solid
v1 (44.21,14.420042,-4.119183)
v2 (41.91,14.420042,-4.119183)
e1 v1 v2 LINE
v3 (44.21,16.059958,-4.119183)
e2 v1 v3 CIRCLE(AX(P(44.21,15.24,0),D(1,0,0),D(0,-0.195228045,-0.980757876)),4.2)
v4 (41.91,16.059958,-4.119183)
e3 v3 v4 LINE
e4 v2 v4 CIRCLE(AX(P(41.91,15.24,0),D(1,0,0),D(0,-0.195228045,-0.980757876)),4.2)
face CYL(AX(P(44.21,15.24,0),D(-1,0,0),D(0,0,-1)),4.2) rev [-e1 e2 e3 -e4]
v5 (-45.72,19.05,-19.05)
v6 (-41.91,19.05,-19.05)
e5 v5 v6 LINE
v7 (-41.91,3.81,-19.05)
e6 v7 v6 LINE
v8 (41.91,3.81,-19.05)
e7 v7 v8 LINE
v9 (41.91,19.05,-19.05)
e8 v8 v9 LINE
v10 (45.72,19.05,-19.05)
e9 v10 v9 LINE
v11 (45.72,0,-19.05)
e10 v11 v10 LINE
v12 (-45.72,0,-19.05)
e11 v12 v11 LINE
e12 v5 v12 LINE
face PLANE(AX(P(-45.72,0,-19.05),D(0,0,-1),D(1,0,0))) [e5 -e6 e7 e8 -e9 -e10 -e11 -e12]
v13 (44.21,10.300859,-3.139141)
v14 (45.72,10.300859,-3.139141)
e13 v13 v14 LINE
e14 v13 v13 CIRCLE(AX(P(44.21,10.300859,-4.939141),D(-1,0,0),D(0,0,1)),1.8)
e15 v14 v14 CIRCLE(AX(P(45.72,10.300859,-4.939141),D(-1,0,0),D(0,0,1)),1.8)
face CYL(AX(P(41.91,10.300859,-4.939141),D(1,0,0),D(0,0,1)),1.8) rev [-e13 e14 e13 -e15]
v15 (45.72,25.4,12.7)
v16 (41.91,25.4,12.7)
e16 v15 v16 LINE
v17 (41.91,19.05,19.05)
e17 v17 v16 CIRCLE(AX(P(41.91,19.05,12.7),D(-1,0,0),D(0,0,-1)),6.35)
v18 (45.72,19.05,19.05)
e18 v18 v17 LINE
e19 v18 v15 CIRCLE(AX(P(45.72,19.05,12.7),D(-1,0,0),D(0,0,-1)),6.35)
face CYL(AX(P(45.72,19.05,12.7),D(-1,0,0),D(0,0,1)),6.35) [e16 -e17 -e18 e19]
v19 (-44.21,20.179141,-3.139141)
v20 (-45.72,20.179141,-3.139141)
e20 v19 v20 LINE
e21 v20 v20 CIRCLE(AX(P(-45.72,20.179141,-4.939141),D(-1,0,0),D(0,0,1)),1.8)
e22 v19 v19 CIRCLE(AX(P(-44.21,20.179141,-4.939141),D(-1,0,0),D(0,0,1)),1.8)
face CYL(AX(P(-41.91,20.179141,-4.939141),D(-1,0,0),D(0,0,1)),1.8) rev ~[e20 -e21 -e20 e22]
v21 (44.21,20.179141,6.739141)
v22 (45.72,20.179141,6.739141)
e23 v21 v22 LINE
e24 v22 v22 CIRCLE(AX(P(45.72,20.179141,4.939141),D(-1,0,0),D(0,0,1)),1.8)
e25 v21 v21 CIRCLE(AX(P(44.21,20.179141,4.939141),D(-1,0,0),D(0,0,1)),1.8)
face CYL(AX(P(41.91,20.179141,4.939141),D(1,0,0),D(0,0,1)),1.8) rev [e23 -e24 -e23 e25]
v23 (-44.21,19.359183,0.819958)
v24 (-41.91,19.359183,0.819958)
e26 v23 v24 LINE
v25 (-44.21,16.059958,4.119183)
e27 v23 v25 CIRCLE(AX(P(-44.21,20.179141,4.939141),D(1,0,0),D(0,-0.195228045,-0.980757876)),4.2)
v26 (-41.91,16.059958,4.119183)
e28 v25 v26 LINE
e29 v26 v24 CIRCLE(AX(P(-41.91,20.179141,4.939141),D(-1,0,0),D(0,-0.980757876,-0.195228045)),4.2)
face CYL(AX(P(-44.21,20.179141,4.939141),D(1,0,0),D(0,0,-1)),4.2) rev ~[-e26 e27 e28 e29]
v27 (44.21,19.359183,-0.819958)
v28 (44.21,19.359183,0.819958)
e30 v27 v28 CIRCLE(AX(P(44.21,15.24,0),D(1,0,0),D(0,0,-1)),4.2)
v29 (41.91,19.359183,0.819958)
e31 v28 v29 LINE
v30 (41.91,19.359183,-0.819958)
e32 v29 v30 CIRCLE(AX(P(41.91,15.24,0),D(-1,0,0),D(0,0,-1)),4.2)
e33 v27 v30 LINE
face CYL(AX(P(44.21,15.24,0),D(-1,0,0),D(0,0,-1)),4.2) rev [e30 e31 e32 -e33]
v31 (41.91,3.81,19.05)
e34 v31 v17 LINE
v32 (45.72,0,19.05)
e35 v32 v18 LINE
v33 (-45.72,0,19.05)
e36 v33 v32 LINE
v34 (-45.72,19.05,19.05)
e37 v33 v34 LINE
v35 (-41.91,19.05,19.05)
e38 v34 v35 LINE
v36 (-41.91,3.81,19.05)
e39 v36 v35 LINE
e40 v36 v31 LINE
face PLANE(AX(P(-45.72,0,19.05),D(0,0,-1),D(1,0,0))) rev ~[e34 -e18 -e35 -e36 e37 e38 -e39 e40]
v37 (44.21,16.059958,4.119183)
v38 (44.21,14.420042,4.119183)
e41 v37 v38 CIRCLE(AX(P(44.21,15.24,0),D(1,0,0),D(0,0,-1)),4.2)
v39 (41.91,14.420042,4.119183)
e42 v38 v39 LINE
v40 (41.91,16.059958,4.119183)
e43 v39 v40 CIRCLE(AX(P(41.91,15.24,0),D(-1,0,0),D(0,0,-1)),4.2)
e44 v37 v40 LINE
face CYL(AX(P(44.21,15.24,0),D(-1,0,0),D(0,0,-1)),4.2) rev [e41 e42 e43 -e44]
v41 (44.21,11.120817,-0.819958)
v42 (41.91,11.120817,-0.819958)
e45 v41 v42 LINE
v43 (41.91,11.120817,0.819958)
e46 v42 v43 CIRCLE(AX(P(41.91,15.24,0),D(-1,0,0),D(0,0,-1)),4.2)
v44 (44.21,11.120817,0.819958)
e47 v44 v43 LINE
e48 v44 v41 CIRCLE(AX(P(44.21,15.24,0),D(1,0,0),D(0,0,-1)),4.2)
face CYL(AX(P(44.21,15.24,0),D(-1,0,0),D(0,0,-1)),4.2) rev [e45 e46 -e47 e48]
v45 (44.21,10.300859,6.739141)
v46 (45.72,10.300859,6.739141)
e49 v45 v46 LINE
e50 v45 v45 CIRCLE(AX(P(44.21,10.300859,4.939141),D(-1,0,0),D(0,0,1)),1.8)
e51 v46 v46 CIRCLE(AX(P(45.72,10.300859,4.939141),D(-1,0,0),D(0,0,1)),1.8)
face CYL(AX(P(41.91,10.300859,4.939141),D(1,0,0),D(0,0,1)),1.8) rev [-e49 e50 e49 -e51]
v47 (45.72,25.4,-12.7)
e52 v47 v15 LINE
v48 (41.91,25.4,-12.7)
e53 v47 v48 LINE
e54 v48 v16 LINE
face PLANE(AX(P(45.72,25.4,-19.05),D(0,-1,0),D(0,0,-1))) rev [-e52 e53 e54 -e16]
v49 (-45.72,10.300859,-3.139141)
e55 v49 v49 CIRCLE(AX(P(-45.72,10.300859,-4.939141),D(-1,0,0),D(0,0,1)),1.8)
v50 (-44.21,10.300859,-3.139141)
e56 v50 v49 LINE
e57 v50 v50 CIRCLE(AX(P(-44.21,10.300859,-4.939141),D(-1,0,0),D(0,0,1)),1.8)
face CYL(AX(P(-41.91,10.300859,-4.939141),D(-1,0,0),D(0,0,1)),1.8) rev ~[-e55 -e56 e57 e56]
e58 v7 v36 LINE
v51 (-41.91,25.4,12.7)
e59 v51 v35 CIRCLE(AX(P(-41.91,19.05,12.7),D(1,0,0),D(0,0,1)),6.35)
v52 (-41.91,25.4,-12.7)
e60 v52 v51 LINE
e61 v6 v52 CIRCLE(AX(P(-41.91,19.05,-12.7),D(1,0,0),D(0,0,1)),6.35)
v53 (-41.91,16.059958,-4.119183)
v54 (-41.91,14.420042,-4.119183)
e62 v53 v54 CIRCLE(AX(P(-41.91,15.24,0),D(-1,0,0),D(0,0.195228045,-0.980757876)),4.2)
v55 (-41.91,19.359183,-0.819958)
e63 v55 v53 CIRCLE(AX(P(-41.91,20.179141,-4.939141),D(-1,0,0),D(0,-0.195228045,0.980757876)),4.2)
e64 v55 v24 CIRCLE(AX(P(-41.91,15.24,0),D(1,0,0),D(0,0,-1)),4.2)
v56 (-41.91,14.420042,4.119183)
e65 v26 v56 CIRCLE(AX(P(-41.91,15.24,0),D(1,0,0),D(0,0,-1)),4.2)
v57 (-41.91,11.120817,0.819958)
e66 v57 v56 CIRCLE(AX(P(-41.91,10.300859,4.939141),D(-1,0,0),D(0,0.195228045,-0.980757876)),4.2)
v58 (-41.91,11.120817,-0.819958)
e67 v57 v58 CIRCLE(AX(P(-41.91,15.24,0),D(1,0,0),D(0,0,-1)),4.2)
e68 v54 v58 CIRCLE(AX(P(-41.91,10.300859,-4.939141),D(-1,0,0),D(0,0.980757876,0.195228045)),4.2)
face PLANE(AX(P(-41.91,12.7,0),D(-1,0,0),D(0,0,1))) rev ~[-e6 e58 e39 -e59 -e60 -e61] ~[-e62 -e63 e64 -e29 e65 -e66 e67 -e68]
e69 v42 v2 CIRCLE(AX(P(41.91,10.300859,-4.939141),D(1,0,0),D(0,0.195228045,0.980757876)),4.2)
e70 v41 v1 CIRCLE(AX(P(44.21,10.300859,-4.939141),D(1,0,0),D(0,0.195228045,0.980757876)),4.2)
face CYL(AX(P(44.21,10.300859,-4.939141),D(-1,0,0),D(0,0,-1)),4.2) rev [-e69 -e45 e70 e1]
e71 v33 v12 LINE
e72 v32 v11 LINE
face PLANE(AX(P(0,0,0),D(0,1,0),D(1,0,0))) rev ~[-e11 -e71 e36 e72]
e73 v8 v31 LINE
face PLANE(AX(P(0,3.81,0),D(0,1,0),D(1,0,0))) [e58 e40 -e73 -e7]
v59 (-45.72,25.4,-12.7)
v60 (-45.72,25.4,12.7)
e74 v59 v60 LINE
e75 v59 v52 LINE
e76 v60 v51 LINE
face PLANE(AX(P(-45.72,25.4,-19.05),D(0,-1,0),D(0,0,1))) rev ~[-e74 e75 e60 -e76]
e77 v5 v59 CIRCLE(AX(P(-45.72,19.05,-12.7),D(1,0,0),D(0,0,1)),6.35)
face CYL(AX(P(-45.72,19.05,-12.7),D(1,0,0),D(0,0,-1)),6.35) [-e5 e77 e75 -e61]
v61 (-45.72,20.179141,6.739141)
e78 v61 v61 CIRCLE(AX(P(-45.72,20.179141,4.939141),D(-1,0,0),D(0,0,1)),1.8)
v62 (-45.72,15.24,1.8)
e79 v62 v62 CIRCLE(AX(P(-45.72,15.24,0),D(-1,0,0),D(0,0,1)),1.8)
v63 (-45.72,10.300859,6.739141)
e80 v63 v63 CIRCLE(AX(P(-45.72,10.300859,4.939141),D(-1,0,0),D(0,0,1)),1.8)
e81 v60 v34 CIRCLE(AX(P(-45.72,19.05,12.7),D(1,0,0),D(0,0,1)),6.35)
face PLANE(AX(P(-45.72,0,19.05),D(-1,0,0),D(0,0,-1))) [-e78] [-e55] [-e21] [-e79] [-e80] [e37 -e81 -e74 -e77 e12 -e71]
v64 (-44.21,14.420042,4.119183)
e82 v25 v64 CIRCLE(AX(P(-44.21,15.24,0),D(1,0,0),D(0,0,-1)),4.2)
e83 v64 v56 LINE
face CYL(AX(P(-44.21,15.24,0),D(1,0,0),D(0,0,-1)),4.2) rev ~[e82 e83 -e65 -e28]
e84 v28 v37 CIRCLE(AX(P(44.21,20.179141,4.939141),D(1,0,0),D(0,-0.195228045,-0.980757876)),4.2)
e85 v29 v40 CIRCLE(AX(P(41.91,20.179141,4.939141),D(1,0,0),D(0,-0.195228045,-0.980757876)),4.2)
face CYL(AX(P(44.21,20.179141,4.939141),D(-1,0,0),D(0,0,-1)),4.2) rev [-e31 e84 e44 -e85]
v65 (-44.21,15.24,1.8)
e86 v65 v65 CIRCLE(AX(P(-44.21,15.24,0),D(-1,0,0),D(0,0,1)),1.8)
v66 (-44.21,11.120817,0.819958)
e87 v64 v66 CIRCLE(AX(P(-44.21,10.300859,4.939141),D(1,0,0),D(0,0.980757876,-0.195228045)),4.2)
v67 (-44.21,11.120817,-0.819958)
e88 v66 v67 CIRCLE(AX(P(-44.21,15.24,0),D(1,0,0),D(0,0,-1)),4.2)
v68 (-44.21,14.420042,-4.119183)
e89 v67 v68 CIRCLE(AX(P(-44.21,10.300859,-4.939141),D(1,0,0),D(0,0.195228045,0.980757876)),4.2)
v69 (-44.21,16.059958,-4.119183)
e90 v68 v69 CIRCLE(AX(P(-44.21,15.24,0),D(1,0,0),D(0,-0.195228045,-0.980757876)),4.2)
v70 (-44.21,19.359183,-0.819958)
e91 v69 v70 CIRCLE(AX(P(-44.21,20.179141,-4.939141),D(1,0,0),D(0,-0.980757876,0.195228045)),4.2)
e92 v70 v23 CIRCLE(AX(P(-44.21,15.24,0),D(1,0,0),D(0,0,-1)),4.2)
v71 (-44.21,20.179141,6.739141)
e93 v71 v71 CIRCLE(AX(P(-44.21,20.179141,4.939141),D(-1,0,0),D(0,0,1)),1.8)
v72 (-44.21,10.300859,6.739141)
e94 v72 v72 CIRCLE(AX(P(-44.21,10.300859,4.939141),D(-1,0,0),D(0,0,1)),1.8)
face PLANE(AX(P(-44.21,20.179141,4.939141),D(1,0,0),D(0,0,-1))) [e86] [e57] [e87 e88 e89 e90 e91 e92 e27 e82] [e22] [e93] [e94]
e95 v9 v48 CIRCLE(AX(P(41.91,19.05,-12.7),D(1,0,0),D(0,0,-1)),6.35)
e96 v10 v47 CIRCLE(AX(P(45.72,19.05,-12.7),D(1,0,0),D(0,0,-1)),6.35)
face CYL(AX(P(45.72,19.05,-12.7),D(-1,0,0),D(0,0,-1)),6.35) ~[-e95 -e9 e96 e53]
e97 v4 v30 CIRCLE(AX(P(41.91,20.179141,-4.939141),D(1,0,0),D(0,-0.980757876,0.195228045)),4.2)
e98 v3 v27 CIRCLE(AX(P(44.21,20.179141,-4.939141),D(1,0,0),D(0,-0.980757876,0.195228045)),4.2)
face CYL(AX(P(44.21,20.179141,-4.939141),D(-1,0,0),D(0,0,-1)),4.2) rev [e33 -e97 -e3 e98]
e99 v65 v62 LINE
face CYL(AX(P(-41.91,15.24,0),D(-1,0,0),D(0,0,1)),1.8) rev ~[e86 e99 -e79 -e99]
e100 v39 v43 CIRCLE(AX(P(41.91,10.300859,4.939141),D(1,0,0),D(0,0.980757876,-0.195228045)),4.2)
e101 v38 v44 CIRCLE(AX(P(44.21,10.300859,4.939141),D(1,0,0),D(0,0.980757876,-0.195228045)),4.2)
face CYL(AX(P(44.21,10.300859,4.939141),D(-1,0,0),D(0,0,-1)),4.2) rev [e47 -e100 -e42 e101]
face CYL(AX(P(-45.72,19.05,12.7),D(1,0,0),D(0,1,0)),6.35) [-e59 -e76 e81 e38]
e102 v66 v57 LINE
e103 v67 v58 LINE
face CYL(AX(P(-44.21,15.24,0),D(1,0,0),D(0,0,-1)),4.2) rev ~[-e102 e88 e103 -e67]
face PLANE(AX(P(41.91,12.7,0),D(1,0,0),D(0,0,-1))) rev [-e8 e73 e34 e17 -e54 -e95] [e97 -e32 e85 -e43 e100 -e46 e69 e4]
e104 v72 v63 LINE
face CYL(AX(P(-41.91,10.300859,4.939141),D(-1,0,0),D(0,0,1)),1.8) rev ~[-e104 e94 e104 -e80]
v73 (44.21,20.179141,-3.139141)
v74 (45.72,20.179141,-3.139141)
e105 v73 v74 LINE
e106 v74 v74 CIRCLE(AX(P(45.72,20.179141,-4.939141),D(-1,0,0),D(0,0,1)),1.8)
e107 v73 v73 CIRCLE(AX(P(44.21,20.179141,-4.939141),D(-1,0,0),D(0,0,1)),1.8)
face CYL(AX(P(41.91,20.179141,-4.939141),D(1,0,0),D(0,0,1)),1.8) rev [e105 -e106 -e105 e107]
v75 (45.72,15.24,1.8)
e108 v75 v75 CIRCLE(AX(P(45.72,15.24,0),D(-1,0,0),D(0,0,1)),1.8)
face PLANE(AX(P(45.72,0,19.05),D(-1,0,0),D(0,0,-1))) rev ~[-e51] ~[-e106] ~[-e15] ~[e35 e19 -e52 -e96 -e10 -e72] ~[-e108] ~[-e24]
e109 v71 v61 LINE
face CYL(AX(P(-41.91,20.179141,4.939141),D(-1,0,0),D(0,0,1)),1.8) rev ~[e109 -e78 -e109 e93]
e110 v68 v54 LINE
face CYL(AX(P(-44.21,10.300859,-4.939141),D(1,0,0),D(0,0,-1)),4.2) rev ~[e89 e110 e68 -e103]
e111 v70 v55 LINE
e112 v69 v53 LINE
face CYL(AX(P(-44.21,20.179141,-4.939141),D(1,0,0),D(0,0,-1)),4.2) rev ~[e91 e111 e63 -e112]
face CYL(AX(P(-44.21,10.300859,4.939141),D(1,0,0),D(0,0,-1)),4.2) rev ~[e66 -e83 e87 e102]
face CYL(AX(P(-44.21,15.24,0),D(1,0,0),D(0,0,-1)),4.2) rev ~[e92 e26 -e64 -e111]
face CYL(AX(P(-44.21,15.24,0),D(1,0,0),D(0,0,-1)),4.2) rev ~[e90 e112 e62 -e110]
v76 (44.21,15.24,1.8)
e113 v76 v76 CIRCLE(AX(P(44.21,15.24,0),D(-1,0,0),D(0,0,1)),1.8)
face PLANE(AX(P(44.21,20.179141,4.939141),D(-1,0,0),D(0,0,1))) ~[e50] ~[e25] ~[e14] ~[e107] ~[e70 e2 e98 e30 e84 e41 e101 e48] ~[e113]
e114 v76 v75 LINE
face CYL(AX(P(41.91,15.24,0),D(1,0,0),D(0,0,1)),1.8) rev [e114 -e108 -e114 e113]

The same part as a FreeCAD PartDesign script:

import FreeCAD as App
import Part
import Sketcher

V = App.Vector
Q = App.Units.Quantity


def edges_at(feature, points):
    """Names of the edges that pass closest to the given points."""
    edges = feature.Shape.Edges
    near = lambda p: min(range(len(edges)), key=lambda i: edges[i].distToShape(Part.Vertex(*p))[0])
    return sorted({f"Edge{near(p) + 1}" for p in points})


def add_polygon(sketch, points):
    """Adds a closed chain of lines whose ends are joined by coincident constraints."""
    first, n = sketch.GeometryCount, len(points)
    for a, b in zip(points, points[1:] + points[:1]):
        sketch.addGeometry(Part.LineSegment(App.Vector(*a, 0), App.Vector(*b, 0)), False)
    for i in range(n):
        sketch.addConstraint(Sketcher.Constraint("Coincident", first + i, 2, first + (i + 1) % n, 1))

doc = App.newDocument("Part")
params = doc.addObject("Spreadsheet::Sheet", "Params")
for row, (alias, value) in enumerate([
    ("sketch1_width", "3.6 in"),
    ("sketch1_height", "1.5 in"),
    ("pad1_length", "0.15 in"),
    ("sketch2_width", "1 in"),
    ("sketch2_height", "1.5 in"),
    ("pad2_length", "0.15 in"),
    ("hole_diameter", "3.6 mm"),
    ("hole_depth", "0.15 in"),
    ("hole_cbore_diameter", "8.4 mm"),
    ("hole_cbore_depth", "2.3 mm"),
    ("fillet_radius", "0.25 in"),
    ("fillet2_radius", "0.25 in"),
], start=1):
    params.set(f"A{row}", alias)
    params.set(f"B{row}", "=" + value)
    params.setAlias(f"B{row}", alias)

body = doc.addObject("PartDesign::Body", "Body")

sketch1 = body.newObject("Sketcher::SketchObject", "Sketch")
sketch1.AttachmentSupport = (doc.getObject("XZ_Plane"), [""])
sketch1.MapMode = "FlatFace"
add_polygon(sketch1, [(-45.72, -19.05), (-45.72, 19.05), (45.72, 19.05), (45.72, -19.05)])
sketch1.addConstraint([
    Sketcher.Constraint("Vertical", 0),
    Sketcher.Constraint("Horizontal", 1),
    Sketcher.Constraint("Vertical", 2),
    Sketcher.Constraint("Horizontal", 3),
    Sketcher.Constraint("Symmetric", 0, 2, 2, 2, -1, 1),
    Sketcher.Constraint("DistanceX", 1, 1, 1, 2, Q("3.6 in")),
    Sketcher.Constraint("DistanceY", 0, 1, 0, 2, Q("1.5 in")),
])
sketch1.setExpression("Constraints[9]", "Params.sketch1_width")
sketch1.setExpression("Constraints[10]", "Params.sketch1_height")
pad1 = body.newObject("PartDesign::Pad", "Pad")
pad1.Profile = sketch1
pad1.setExpression("Length", "Params.pad1_length")
pad1.Reversed = True

sketch2 = body.newObject("Sketcher::SketchObject", "Sketch001")
sketch2.AttachmentSupport = (doc.getObject("YZ_Plane"), [""])
sketch2.MapMode = "FlatFace"
sketch2.AttachmentOffset = App.Placement(V(0, 0, -1.8 * 25.4), App.Rotation())
add_polygon(sketch2, [(25.4, -19.05), (0, -19.05), (0, 19.05), (25.4, 19.05)])
sketch2.addConstraint([
    Sketcher.Constraint("Horizontal", 0),
    Sketcher.Constraint("Vertical", 1),
    Sketcher.Constraint("Horizontal", 2),
    Sketcher.Constraint("Vertical", 3),
    Sketcher.Constraint("Symmetric", 0, 2, 1, 2, -1, 1),
    Sketcher.Constraint("DistanceX", 0, 2, 0, 1, Q("1 in")),
    Sketcher.Constraint("DistanceY", 1, 1, 1, 2, Q("1.5 in")),
])
sketch2.setExpression("Constraints[9]", "Params.sketch2_width")
sketch2.setExpression("Constraints[10]", "Params.sketch2_height")
pad2 = body.newObject("PartDesign::Pad", "Pad001")
pad2.Profile = sketch2
pad2.setExpression("Length", "Params.pad2_length")

sketch3 = body.newObject("Sketcher::SketchObject", "Sketch002")
sketch3.AttachmentSupport = (doc.getObject("YZ_Plane"), [""])
sketch3.MapMode = "FlatFace"
sketch3.AttachmentOffset = App.Placement(V(0, 0, -1.65 * 25.4), App.Rotation())
sketch3.addGeometry([
    Part.Circle(V(20.179141, 4.939141, 0), V(0, 0, 1), 1.8),
    Part.Circle(V(20.179141, -4.939141, 0), V(0, 0, 1), 1.8),
    Part.Circle(V(15.24, 0, 0), V(0, 0, 1), 1.8),
    Part.Circle(V(10.300859, 4.939141, 0), V(0, 0, 1), 1.8),
    Part.Circle(V(10.300859, -4.939141, 0), V(0, 0, 1), 1.8),
], False)
sketch3.addConstraint([
    Sketcher.Constraint("Equal", 0, 1),
    Sketcher.Constraint("Equal", 1, 2),
    Sketcher.Constraint("Equal", 2, 3),
    Sketcher.Constraint("Equal", 3, 4),
    Sketcher.Constraint("Symmetric", 0, 3, 1, 3, -1),
    Sketcher.Constraint("Symmetric", 3, 3, 4, 3, -1),
    Sketcher.Constraint("PointOnObject", 2, 3, -1),
    Sketcher.Constraint("Horizontal", 0, 3, 3, 3),
    Sketcher.Constraint("DistanceX", -1, 1, 2, 3, Q("0.6 in")),
    Sketcher.Constraint("Diameter", 0, 3.6),
    Sketcher.Constraint("DistanceX", -1, 1, 0, 3, 20.179141),
    Sketcher.Constraint("DistanceY", -1, 1, 0, 3, 4.939141),
    Sketcher.Constraint("DistanceX", -1, 1, 3, 3, 10.300859),
])
doc.recompute()
hole = body.newObject("PartDesign::Hole", "Hole")
hole.Profile = sketch3
hole.ThreadType = "None"
hole.setExpression("Diameter", "Params.hole_diameter")
hole.DepthType = "Dimension"
hole.setExpression("Depth", "Params.hole_depth")
hole.DrillPoint = "Flat"
hole.HoleCutType = "Counterbore"
hole.setExpression("HoleCutDiameter", "Params.hole_cbore_diameter")
hole.setExpression("HoleCutDepth", "Params.hole_cbore_depth")
doc.recompute()

fillet = body.newObject("PartDesign::Fillet", "Fillet")
fillet.Base = (hole, edges_at(hole, [(-43.815, 25.4, -19.05), (-43.815, 25.4, 19.05)]))
fillet.setExpression("Radius", "Params.fillet_radius")
doc.recompute()

mirrored = body.newObject("PartDesign::Mirrored", "Mirrored")
mirrored.Originals = [pad2, hole]
mirrored.MirrorPlane = (doc.getObject("YZ_Plane"), [""])
body.Tip = mirrored
doc.recompute()

fillet2 = body.newObject("PartDesign::Fillet", "Fillet001")
fillet2.Base = (mirrored, edges_at(mirrored, [(43.815, 25.4, -19.05), (43.815, 25.4, 19.05)]))
fillet2.setExpression("Radius", "Params.fillet2_radius")

doc.recompute()
